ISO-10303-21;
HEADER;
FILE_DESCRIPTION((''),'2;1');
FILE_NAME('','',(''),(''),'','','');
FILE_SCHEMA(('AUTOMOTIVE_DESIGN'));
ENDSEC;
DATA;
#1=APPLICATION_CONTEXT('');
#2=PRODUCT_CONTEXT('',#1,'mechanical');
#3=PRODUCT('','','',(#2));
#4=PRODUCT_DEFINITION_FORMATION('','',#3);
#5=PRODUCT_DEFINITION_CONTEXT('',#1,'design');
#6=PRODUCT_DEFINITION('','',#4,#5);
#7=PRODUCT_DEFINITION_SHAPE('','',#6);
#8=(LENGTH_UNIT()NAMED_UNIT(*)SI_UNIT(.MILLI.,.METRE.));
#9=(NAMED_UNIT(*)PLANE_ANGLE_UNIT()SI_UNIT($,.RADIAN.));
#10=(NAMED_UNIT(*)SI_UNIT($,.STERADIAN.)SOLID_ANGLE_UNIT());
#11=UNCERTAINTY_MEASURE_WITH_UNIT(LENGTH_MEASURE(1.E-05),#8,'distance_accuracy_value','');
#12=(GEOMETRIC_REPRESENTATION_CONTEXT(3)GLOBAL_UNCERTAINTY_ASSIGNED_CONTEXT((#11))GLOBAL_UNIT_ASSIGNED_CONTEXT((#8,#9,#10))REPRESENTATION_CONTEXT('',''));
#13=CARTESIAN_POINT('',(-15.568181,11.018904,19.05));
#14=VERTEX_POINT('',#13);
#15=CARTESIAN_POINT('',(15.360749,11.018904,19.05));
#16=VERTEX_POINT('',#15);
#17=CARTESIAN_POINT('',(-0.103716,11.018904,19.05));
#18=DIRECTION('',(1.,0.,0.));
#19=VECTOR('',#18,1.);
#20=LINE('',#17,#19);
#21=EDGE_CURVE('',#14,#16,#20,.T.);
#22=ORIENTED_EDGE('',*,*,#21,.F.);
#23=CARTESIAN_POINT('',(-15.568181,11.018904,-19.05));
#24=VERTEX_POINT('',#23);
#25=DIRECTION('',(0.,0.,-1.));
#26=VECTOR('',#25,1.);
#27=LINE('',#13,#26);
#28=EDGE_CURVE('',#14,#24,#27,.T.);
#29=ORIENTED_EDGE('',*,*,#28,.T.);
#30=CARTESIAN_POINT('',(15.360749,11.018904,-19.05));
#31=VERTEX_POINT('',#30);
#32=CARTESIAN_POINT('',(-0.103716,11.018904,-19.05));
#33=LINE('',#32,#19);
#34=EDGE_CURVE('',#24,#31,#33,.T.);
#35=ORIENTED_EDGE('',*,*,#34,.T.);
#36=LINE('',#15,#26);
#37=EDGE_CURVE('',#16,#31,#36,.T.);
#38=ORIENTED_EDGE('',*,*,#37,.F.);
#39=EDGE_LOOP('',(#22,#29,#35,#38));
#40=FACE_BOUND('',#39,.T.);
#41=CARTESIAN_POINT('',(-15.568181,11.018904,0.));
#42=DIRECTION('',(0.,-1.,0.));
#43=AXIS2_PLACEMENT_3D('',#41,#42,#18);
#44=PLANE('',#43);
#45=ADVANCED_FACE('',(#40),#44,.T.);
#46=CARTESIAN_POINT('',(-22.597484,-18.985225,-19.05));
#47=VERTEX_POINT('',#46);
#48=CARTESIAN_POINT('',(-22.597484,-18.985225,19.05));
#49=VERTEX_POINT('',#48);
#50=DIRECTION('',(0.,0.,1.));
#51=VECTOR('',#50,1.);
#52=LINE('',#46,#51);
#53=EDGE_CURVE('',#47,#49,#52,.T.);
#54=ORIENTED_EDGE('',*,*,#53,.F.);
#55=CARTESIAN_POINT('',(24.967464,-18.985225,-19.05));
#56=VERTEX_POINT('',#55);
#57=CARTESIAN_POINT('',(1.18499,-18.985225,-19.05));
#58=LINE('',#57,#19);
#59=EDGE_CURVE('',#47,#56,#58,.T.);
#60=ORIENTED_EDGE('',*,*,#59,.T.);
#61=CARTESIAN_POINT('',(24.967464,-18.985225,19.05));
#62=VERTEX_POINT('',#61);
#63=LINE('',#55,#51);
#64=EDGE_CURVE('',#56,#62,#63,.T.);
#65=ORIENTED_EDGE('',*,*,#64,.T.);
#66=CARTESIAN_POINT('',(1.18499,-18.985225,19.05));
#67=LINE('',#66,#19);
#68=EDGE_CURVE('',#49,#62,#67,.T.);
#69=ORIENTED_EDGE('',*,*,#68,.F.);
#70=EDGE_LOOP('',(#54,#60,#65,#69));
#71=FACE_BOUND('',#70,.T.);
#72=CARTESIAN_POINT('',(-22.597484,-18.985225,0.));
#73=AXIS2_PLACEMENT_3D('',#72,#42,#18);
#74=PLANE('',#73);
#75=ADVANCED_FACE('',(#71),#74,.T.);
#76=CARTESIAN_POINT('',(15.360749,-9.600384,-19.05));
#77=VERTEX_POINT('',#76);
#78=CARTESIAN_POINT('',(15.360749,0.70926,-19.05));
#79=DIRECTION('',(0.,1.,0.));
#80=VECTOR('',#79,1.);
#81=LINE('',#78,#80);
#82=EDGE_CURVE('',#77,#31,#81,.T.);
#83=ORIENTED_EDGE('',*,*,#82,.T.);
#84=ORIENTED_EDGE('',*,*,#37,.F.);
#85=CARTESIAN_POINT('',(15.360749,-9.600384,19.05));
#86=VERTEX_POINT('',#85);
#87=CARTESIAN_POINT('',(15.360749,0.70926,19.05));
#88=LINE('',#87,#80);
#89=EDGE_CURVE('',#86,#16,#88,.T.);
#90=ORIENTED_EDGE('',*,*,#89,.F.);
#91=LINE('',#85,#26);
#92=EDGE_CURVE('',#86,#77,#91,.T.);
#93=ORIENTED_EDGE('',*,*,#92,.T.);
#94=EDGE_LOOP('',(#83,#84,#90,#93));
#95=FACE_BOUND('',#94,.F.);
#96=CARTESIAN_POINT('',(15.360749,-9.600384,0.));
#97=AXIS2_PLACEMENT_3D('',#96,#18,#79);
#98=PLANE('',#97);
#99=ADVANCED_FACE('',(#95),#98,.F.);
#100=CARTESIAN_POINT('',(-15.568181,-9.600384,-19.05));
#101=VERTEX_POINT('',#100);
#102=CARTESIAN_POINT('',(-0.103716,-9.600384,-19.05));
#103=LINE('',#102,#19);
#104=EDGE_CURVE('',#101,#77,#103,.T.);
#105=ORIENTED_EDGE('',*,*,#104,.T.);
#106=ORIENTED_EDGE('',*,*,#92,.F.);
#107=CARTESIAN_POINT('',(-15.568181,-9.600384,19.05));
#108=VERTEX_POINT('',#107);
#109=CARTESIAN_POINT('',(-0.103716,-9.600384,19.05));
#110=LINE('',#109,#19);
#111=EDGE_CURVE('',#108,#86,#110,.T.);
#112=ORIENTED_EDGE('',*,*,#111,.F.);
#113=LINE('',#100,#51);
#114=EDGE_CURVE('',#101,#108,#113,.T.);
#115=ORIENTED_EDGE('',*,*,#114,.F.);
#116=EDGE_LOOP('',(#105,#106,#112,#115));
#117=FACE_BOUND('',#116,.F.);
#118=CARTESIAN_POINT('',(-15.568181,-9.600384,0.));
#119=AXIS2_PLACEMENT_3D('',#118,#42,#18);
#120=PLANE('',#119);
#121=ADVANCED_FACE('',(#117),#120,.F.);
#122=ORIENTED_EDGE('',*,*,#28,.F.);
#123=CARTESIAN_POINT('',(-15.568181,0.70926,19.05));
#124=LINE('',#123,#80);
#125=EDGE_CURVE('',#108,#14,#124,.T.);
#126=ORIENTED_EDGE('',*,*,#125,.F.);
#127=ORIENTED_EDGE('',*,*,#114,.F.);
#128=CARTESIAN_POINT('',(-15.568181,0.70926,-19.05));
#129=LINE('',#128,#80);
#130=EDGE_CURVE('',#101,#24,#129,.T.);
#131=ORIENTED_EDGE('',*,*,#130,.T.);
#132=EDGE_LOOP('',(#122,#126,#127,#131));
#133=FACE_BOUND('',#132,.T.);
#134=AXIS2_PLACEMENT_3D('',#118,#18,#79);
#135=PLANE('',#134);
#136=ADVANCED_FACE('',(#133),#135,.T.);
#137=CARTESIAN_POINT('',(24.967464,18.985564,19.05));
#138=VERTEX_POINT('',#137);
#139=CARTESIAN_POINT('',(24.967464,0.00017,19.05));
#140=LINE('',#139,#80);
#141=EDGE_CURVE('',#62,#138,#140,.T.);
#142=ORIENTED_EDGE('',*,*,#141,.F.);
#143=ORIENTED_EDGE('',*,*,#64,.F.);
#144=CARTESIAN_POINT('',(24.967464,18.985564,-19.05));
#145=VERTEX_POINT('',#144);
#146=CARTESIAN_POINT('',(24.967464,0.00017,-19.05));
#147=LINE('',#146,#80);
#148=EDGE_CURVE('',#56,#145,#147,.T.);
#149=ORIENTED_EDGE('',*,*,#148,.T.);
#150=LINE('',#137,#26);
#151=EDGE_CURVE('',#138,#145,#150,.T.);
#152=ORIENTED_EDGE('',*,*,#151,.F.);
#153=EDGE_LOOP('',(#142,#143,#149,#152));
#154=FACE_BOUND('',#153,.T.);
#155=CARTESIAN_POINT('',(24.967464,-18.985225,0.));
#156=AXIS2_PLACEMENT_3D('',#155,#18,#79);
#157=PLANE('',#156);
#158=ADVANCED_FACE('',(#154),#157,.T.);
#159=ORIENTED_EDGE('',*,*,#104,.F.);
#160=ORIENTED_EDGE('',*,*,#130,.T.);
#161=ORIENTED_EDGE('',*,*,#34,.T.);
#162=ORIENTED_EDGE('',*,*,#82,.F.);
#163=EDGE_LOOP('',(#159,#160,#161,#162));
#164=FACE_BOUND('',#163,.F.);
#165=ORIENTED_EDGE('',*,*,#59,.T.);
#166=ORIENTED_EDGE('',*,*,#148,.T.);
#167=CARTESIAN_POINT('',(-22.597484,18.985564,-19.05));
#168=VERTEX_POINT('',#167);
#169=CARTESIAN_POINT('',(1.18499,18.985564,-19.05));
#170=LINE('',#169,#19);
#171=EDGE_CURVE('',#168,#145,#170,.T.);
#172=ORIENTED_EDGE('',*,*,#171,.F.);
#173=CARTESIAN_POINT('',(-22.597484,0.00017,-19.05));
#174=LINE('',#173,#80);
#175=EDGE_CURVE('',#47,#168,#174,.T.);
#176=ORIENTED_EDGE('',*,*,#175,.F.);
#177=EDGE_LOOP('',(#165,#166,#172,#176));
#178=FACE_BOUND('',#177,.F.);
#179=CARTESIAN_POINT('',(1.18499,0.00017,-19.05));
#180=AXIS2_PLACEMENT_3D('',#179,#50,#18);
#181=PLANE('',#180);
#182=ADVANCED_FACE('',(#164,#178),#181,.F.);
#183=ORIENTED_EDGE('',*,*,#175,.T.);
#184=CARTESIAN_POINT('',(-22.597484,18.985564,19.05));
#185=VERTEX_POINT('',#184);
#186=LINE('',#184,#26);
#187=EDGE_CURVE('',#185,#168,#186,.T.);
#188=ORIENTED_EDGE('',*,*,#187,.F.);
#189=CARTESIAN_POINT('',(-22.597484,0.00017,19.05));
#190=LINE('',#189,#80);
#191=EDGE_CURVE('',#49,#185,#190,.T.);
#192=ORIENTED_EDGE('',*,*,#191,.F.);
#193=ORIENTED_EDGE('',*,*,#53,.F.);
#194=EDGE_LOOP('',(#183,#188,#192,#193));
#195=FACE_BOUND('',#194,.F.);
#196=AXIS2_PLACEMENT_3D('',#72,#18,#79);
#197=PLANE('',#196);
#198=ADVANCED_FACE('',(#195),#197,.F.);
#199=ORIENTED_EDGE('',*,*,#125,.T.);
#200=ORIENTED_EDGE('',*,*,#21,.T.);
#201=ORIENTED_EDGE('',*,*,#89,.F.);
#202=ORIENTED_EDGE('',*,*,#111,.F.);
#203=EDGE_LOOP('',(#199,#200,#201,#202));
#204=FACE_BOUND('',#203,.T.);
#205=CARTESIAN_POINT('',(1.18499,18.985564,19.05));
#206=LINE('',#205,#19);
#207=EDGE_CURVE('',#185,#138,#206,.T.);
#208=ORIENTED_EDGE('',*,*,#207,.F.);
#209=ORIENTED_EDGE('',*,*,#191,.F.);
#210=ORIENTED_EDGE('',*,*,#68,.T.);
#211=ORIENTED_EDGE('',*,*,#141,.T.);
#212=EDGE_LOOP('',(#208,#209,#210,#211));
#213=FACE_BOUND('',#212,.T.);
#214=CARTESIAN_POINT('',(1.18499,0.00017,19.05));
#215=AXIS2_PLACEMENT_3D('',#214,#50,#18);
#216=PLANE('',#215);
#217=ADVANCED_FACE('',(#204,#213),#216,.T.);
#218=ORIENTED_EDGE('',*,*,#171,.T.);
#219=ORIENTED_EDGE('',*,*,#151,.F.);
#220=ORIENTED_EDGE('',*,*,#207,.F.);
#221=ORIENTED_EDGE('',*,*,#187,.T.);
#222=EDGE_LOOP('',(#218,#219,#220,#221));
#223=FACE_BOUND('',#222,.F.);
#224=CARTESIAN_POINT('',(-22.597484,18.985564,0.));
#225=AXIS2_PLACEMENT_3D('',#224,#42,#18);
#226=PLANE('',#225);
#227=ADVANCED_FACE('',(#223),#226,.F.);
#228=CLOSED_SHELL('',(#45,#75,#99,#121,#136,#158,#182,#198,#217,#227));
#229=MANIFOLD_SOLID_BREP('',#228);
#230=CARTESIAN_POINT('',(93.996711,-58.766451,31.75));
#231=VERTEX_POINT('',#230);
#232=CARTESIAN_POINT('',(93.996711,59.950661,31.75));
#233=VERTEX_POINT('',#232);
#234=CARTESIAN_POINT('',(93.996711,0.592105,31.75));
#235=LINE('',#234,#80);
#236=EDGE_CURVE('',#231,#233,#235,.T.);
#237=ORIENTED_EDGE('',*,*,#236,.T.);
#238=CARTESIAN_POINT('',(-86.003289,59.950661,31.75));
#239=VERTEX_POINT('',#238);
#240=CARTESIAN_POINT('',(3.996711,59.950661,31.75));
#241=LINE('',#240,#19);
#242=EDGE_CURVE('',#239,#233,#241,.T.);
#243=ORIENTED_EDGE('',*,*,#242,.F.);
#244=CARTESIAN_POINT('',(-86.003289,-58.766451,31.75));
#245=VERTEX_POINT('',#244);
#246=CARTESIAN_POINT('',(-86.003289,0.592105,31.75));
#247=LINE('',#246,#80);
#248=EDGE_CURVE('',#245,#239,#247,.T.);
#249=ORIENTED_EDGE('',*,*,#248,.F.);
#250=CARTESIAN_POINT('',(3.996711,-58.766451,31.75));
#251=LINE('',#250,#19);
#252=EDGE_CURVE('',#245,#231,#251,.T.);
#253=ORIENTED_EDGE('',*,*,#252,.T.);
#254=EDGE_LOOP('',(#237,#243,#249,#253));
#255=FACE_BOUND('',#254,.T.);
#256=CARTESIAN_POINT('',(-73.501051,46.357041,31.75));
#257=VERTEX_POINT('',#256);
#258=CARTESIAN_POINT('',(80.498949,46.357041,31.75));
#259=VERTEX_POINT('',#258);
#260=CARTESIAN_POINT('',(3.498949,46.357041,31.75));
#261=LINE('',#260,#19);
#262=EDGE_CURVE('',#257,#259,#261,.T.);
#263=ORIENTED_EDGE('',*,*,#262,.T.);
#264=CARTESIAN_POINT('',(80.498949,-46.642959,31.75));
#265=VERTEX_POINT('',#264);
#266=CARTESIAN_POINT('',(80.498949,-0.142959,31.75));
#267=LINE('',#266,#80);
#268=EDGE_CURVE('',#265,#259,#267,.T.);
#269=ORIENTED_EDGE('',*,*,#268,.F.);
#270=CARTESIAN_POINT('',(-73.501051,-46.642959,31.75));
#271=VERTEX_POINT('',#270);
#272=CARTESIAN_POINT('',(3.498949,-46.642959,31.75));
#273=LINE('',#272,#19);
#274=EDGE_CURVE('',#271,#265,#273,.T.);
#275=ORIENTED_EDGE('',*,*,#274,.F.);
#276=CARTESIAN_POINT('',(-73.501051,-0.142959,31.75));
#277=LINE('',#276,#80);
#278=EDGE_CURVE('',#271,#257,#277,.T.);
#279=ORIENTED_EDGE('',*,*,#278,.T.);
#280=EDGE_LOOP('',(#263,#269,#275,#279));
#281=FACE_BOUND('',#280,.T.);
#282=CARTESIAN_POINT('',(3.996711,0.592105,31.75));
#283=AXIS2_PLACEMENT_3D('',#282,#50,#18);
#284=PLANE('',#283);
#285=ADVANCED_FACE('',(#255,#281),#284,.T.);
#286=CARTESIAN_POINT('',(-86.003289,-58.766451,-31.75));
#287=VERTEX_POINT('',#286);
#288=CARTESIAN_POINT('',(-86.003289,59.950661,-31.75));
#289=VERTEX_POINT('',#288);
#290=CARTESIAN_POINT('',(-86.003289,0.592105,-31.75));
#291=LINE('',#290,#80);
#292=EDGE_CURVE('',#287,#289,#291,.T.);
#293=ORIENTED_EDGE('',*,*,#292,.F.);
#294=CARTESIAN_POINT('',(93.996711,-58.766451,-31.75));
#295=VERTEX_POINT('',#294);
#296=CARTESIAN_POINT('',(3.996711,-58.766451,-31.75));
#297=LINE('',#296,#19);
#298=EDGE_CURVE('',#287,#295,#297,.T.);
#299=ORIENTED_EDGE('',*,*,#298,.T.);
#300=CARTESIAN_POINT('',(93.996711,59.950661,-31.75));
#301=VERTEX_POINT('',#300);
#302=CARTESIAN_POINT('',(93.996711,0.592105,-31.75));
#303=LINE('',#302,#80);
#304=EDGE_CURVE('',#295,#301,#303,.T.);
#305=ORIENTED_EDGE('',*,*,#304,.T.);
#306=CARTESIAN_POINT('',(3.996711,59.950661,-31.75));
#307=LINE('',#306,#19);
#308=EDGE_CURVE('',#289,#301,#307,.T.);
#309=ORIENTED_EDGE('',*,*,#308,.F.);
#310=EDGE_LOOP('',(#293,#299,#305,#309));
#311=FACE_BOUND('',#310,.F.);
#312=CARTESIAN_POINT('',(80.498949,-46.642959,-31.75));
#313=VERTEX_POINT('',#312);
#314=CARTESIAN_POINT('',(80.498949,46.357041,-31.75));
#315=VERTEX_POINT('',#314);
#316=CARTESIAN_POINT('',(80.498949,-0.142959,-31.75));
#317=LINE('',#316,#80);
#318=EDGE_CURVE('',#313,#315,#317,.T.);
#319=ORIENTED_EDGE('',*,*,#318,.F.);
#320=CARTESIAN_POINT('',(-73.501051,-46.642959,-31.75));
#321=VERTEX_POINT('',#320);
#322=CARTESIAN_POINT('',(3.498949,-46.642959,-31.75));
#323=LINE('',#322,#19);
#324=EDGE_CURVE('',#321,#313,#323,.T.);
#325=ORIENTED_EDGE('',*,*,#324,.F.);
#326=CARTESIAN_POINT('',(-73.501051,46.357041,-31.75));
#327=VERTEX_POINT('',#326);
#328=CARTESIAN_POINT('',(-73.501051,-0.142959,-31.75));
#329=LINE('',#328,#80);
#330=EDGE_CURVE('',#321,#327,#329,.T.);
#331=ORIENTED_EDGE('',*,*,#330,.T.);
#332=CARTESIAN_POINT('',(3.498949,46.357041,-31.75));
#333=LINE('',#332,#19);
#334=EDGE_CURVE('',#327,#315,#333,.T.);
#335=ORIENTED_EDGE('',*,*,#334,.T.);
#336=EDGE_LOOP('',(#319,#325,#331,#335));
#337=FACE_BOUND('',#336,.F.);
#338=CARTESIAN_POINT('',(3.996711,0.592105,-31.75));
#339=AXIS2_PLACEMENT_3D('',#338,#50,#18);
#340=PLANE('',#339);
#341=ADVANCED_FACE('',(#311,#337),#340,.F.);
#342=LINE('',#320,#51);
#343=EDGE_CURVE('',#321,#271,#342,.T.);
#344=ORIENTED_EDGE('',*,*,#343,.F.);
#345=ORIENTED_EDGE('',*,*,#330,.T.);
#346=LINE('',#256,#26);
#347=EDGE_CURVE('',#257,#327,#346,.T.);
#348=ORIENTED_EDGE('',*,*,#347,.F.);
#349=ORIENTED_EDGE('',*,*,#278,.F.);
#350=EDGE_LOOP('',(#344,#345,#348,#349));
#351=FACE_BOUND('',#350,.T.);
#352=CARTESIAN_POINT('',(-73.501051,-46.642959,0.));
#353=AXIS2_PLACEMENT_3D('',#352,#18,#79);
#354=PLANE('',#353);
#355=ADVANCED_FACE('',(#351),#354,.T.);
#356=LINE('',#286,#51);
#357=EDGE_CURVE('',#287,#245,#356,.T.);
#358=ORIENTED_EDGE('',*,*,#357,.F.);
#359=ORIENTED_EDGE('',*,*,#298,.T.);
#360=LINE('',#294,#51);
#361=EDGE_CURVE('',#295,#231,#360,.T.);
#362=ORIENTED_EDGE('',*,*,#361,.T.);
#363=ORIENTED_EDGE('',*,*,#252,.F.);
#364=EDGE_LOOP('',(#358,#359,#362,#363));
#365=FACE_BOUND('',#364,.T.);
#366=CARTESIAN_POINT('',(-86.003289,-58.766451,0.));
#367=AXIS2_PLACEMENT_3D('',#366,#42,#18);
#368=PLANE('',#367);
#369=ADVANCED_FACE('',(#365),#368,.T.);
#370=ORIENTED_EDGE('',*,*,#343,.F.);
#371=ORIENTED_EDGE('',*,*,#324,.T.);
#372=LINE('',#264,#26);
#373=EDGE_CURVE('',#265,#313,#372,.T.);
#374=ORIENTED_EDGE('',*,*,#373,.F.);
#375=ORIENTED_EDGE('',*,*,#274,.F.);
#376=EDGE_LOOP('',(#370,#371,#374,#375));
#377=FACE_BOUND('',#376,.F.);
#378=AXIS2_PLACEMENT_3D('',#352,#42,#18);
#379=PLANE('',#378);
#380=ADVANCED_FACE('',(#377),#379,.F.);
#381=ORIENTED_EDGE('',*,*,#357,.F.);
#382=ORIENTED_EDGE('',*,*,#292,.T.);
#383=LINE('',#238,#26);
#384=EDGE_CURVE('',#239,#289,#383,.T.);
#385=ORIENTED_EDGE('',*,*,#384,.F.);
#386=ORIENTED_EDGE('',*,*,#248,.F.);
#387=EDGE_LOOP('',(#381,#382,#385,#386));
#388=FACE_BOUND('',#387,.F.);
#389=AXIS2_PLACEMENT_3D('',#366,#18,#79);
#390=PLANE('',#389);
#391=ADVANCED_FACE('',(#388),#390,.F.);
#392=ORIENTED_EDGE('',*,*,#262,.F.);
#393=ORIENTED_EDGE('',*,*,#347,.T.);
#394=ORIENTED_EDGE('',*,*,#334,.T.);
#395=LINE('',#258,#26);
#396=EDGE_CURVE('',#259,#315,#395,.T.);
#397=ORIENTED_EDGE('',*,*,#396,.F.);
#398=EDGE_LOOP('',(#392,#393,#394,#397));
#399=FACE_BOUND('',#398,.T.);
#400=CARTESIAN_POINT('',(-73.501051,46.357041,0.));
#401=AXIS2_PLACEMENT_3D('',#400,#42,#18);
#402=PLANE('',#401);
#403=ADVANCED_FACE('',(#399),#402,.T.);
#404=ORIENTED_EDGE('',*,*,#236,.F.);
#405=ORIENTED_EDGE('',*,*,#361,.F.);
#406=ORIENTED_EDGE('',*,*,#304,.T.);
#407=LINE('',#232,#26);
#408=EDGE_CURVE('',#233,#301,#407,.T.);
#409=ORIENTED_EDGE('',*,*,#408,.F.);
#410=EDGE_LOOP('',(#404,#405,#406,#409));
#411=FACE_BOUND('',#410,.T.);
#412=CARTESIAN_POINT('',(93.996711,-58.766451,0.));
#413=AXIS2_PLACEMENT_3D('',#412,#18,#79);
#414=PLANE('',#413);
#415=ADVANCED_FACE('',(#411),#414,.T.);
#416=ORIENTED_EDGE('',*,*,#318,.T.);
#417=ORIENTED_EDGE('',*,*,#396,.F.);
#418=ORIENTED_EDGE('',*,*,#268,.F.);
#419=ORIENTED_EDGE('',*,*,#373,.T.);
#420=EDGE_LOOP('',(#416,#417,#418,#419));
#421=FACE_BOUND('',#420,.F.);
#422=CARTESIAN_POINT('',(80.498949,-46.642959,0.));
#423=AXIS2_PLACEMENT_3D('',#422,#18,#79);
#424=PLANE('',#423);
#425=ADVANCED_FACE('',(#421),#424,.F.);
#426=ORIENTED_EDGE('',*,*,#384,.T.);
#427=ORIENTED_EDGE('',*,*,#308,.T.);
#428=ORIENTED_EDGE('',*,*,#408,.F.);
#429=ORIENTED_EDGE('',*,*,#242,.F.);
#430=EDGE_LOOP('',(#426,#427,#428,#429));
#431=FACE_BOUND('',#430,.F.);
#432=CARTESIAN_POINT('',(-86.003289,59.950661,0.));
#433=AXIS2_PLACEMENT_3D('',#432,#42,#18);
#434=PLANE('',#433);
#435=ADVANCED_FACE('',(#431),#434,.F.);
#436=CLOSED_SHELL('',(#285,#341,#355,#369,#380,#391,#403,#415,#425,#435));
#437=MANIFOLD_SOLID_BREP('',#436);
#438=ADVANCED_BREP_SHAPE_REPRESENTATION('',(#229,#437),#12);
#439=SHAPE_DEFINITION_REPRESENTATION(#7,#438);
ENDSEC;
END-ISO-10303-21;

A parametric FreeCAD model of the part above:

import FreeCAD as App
import Part
import Sketcher
from FreeCAD import Vector
Q = App.Units.Quantity


def add_polygon(sketch, points):
    """Adds a closed chain of lines whose ends are joined by coincident constraints."""
    first, n = sketch.GeometryCount, len(points)
    for a, b in zip(points, points[1:] + points[:1]):
        sketch.addGeometry(Part.LineSegment(App.Vector(*a, 0), App.Vector(*b, 0)), False)
    for i in range(n):
        sketch.addConstraint(Sketcher.Constraint("Coincident", first + i, 2, first + (i + 1) % n, 1))

doc = App.newDocument("Part")
params = doc.addObject("Spreadsheet::Sheet", "Params")
for row, (alias, value) in enumerate([
    ("sketch1_width", "180 mm"),
    ("sketch1_width2", "154 mm"),
    ("sketch1_height", "93 mm"),
    ("pad1_length", "63.5 mm"),
    ("pad2_length", "38.1 mm"),
], start=1):
    params.set(f"A{row}", alias)
    params.set(f"B{row}", "=" + value)
    params.setAlias(f"B{row}", alias)

body = doc.addObject("PartDesign::Body", "Body")

sketch1 = body.newObject("Sketcher::SketchObject", "Sketch")
sketch1.AttachmentSupport = (doc.getObject("XY_Plane"), [""])
sketch1.MapMode = "FlatFace"
add_polygon(sketch1, [(-86, 60), (-86, -59), (94, -59), (94, 60)])
add_polygon(sketch1, [(80, -47), (-74, -47), (-74, 46), (80, 46)])
sketch1.addConstraint([
    Sketcher.Constraint("Vertical", 0),
    Sketcher.Constraint("Horizontal", 1),
    Sketcher.Constraint("Vertical", 2),
    Sketcher.Constraint("Horizontal", 3),
    Sketcher.Constraint("Horizontal", 4),
    Sketcher.Constraint("Vertical", 5),
    Sketcher.Constraint("Horizontal", 6),
    Sketcher.Constraint("Vertical", 7),
    Sketcher.Constraint("DistanceX", 1, 1, 1, 2, Q("180 mm")),
    Sketcher.Constraint("DistanceX", 4, 2, 4, 1, Q("154 mm")),
    Sketcher.Constraint("DistanceY", 5, 1, 5, 2, Q("93 mm")),
    Sketcher.Constraint("DistanceY", 0, 2, 0, 1, Q("118.717112 mm")),
    Sketcher.Constraint("DistanceX", 0, 2, -1, 1, Q("86.003289 mm")),
    Sketcher.Constraint("DistanceY", 0, 2, -1, 1, Q("58.766451 mm")),
    Sketcher.Constraint("DistanceX", 4, 2, -1, 1, Q("73.501051 mm")),
    Sketcher.Constraint("DistanceY", 4, 2, -1, 1, Q("46.642959 mm")),
])
sketch1.setExpression("Constraints[16]", "Params.sketch1_width")
sketch1.setExpression("Constraints[17]", "Params.sketch1_width2")
sketch1.setExpression("Constraints[18]", "Params.sketch1_height")
pad1 = body.newObject("PartDesign::Pad", "Pad")
pad1.Profile = sketch1
pad1.setExpression("Length", "Params.pad1_length")
pad1.Midplane = True
body2 = doc.addObject("PartDesign::Body", "Body001")

sketch2 = body2.newObject("Sketcher::SketchObject", "Sketch001")
sketch2.AttachmentSupport = (doc.getObject("XY_Plane001"), [""])
sketch2.MapMode = "FlatFace"
add_polygon(sketch2, [(-23, 19), (-23, -19), (25, -19), (25, 19)])
add_polygon(sketch2, [(15, -10), (-16, -10), (-16, 11), (15, 11)])
sketch2.addConstraint([
    Sketcher.Constraint("Vertical", 0),
    Sketcher.Constraint("Horizontal", 1),
    Sketcher.Constraint("Vertical", 2),
    Sketcher.Constraint("Horizontal", 3),
    Sketcher.Constraint("Horizontal", 4),
    Sketcher.Constraint("Vertical", 5),
    Sketcher.Constraint("Horizontal", 6),
    Sketcher.Constraint("Vertical", 7),
    Sketcher.Constraint("DistanceX", 4, 2, 4, 1, Q("30.92893 mm")),
    Sketcher.Constraint("DistanceY", 0, 2, 0, 1, Q("37.970789 mm")),
    Sketcher.Constraint("DistanceX", 1, 1, 1, 2, Q("47.564948 mm")),
    Sketcher.Constraint("DistanceY", 5, 1, 5, 2, Q("20.619288 mm")),
    Sketcher.Constraint("DistanceX", 4, 2, -1, 1, Q("15.568181 mm")),
    Sketcher.Constraint("DistanceY", 0, 2, 4, 2, Q("9.384841 mm")),
    Sketcher.Constraint("DistanceX", 0, 2, -1, 1, Q("22.597484 mm")),
    Sketcher.Constraint("DistanceY", 0, 2, -1, 1, Q("18.985225 mm")),
])
pad2 = body2.newObject("PartDesign::Pad", "Pad001")
pad2.Profile = sketch2
pad2.setExpression("Length", "Params.pad2_length")
pad2.Midplane = True

doc.recompute()
